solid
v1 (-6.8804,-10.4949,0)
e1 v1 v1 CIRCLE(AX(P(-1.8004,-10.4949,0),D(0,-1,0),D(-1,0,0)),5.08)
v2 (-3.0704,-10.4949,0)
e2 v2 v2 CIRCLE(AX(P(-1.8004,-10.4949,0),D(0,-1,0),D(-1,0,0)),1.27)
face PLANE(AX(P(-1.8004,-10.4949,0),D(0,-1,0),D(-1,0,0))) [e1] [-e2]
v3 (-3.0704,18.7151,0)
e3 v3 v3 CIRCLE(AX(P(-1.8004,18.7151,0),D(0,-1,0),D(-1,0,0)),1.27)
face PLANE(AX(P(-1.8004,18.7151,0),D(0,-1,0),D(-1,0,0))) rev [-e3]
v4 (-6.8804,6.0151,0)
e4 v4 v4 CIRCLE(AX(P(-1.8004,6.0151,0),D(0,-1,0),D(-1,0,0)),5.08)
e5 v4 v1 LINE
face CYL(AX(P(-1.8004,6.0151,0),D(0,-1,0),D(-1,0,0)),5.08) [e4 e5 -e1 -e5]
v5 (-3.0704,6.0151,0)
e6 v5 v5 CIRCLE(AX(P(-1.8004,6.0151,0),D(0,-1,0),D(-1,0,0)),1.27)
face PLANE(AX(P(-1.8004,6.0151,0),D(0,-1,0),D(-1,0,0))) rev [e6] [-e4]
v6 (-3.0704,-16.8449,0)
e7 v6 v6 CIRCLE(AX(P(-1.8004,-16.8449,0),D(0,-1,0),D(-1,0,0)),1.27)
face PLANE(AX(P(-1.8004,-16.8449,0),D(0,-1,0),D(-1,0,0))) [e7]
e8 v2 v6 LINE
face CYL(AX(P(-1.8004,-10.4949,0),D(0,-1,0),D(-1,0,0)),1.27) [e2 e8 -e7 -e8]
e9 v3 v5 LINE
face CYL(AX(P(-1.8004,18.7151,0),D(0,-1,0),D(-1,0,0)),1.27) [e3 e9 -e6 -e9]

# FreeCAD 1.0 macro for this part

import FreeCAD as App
import Part
import Sketcher
from FreeCAD import Vector
Q = App.Units.Quantity


def add_polygon(sketch, points):
    """Adds a closed chain of lines whose ends are joined by coincident constraints."""
    first, n = sketch.GeometryCount, len(points)
    for a, b in zip(points, points[1:] + points[:1]):
        sketch.addGeometry(Part.LineSegment(App.Vector(*a, 0), App.Vector(*b, 0)), False)
    for i in range(n):
        sketch.addConstraint(Sketcher.Constraint("Coincident", first + i, 2, first + (i + 1) % n, 1))

doc = App.newDocument("Part")
body = doc.addObject("PartDesign::Body", "Body")

sketch1 = doc.addObject("Sketcher::SketchObject", "Sketch")
body.addObject(sketch1)
sketch1.AttachmentSupport = (doc.XY_Plane, [""])
sketch1.MapMode = "FlatFace"
add_polygon(sketch1, [(-1.8004, 18.7151), (-3.0704, 18.7151), (-3.0704, 6.0151), (-6.8804, 6.0151), (-6.8804, -10.4949), (-3.0704, -10.4949), (-3.0704, -16.8449), (-1.8004, -16.8449)])
sketch1.addGeometry(Part.LineSegment(Vector(-1.8004, 18.7151, 0), Vector(-1.8004, -16.8449, 0)), True)
sketch1.addConstraint([
    Sketcher.Constraint("Horizontal", 0),
    Sketcher.Constraint("Vertical", 1),
    Sketcher.Constraint("Horizontal", 2),
    Sketcher.Constraint("Vertical", 3),
    Sketcher.Constraint("Horizontal", 4),
    Sketcher.Constraint("Vertical", 5),
    Sketcher.Constraint("Horizontal", 6),
    Sketcher.Constraint("Vertical", 7),
    Sketcher.Constraint("Vertical", 8),
    Sketcher.Constraint("Coincident", 8, 1, 7, 2),
    Sketcher.Constraint("Horizontal", 5, 2, 8, 2),
    Sketcher.Constraint("Vertical", 1, 2, 4, 2),
    Sketcher.Constraint("DistanceY", 1, 2, 1, 1, Q("0.5 in")),
    Sketcher.Constraint("DistanceX", 0, 2, 0, 1, Q("0.05 in")),
    Sketcher.Constraint("DistanceY", 3, 2, 3, 1, Q("0.65 in")),
    Sketcher.Constraint("DistanceY", 5, 2, 5, 1, Q("0.25 in")),
    Sketcher.Constraint("DistanceX", 3, 2, 6, 2, Q("0.2 in")),
    Sketcher.Constraint("DistanceX", 0, 2, -1, 1, Q("3.0704 mm")),
    Sketcher.Constraint("DistanceY", -1, 1, 0, 2, Q("0.736811 in")),
])
revolution = doc.addObject("PartDesign::Revolution", "Revolution")
body.addObject(revolution)
revolution.Profile = sketch1
revolution.ReferenceAxis = (sketch1, ["Axis0"])
revolution.Angle = 360

doc.recompute()
